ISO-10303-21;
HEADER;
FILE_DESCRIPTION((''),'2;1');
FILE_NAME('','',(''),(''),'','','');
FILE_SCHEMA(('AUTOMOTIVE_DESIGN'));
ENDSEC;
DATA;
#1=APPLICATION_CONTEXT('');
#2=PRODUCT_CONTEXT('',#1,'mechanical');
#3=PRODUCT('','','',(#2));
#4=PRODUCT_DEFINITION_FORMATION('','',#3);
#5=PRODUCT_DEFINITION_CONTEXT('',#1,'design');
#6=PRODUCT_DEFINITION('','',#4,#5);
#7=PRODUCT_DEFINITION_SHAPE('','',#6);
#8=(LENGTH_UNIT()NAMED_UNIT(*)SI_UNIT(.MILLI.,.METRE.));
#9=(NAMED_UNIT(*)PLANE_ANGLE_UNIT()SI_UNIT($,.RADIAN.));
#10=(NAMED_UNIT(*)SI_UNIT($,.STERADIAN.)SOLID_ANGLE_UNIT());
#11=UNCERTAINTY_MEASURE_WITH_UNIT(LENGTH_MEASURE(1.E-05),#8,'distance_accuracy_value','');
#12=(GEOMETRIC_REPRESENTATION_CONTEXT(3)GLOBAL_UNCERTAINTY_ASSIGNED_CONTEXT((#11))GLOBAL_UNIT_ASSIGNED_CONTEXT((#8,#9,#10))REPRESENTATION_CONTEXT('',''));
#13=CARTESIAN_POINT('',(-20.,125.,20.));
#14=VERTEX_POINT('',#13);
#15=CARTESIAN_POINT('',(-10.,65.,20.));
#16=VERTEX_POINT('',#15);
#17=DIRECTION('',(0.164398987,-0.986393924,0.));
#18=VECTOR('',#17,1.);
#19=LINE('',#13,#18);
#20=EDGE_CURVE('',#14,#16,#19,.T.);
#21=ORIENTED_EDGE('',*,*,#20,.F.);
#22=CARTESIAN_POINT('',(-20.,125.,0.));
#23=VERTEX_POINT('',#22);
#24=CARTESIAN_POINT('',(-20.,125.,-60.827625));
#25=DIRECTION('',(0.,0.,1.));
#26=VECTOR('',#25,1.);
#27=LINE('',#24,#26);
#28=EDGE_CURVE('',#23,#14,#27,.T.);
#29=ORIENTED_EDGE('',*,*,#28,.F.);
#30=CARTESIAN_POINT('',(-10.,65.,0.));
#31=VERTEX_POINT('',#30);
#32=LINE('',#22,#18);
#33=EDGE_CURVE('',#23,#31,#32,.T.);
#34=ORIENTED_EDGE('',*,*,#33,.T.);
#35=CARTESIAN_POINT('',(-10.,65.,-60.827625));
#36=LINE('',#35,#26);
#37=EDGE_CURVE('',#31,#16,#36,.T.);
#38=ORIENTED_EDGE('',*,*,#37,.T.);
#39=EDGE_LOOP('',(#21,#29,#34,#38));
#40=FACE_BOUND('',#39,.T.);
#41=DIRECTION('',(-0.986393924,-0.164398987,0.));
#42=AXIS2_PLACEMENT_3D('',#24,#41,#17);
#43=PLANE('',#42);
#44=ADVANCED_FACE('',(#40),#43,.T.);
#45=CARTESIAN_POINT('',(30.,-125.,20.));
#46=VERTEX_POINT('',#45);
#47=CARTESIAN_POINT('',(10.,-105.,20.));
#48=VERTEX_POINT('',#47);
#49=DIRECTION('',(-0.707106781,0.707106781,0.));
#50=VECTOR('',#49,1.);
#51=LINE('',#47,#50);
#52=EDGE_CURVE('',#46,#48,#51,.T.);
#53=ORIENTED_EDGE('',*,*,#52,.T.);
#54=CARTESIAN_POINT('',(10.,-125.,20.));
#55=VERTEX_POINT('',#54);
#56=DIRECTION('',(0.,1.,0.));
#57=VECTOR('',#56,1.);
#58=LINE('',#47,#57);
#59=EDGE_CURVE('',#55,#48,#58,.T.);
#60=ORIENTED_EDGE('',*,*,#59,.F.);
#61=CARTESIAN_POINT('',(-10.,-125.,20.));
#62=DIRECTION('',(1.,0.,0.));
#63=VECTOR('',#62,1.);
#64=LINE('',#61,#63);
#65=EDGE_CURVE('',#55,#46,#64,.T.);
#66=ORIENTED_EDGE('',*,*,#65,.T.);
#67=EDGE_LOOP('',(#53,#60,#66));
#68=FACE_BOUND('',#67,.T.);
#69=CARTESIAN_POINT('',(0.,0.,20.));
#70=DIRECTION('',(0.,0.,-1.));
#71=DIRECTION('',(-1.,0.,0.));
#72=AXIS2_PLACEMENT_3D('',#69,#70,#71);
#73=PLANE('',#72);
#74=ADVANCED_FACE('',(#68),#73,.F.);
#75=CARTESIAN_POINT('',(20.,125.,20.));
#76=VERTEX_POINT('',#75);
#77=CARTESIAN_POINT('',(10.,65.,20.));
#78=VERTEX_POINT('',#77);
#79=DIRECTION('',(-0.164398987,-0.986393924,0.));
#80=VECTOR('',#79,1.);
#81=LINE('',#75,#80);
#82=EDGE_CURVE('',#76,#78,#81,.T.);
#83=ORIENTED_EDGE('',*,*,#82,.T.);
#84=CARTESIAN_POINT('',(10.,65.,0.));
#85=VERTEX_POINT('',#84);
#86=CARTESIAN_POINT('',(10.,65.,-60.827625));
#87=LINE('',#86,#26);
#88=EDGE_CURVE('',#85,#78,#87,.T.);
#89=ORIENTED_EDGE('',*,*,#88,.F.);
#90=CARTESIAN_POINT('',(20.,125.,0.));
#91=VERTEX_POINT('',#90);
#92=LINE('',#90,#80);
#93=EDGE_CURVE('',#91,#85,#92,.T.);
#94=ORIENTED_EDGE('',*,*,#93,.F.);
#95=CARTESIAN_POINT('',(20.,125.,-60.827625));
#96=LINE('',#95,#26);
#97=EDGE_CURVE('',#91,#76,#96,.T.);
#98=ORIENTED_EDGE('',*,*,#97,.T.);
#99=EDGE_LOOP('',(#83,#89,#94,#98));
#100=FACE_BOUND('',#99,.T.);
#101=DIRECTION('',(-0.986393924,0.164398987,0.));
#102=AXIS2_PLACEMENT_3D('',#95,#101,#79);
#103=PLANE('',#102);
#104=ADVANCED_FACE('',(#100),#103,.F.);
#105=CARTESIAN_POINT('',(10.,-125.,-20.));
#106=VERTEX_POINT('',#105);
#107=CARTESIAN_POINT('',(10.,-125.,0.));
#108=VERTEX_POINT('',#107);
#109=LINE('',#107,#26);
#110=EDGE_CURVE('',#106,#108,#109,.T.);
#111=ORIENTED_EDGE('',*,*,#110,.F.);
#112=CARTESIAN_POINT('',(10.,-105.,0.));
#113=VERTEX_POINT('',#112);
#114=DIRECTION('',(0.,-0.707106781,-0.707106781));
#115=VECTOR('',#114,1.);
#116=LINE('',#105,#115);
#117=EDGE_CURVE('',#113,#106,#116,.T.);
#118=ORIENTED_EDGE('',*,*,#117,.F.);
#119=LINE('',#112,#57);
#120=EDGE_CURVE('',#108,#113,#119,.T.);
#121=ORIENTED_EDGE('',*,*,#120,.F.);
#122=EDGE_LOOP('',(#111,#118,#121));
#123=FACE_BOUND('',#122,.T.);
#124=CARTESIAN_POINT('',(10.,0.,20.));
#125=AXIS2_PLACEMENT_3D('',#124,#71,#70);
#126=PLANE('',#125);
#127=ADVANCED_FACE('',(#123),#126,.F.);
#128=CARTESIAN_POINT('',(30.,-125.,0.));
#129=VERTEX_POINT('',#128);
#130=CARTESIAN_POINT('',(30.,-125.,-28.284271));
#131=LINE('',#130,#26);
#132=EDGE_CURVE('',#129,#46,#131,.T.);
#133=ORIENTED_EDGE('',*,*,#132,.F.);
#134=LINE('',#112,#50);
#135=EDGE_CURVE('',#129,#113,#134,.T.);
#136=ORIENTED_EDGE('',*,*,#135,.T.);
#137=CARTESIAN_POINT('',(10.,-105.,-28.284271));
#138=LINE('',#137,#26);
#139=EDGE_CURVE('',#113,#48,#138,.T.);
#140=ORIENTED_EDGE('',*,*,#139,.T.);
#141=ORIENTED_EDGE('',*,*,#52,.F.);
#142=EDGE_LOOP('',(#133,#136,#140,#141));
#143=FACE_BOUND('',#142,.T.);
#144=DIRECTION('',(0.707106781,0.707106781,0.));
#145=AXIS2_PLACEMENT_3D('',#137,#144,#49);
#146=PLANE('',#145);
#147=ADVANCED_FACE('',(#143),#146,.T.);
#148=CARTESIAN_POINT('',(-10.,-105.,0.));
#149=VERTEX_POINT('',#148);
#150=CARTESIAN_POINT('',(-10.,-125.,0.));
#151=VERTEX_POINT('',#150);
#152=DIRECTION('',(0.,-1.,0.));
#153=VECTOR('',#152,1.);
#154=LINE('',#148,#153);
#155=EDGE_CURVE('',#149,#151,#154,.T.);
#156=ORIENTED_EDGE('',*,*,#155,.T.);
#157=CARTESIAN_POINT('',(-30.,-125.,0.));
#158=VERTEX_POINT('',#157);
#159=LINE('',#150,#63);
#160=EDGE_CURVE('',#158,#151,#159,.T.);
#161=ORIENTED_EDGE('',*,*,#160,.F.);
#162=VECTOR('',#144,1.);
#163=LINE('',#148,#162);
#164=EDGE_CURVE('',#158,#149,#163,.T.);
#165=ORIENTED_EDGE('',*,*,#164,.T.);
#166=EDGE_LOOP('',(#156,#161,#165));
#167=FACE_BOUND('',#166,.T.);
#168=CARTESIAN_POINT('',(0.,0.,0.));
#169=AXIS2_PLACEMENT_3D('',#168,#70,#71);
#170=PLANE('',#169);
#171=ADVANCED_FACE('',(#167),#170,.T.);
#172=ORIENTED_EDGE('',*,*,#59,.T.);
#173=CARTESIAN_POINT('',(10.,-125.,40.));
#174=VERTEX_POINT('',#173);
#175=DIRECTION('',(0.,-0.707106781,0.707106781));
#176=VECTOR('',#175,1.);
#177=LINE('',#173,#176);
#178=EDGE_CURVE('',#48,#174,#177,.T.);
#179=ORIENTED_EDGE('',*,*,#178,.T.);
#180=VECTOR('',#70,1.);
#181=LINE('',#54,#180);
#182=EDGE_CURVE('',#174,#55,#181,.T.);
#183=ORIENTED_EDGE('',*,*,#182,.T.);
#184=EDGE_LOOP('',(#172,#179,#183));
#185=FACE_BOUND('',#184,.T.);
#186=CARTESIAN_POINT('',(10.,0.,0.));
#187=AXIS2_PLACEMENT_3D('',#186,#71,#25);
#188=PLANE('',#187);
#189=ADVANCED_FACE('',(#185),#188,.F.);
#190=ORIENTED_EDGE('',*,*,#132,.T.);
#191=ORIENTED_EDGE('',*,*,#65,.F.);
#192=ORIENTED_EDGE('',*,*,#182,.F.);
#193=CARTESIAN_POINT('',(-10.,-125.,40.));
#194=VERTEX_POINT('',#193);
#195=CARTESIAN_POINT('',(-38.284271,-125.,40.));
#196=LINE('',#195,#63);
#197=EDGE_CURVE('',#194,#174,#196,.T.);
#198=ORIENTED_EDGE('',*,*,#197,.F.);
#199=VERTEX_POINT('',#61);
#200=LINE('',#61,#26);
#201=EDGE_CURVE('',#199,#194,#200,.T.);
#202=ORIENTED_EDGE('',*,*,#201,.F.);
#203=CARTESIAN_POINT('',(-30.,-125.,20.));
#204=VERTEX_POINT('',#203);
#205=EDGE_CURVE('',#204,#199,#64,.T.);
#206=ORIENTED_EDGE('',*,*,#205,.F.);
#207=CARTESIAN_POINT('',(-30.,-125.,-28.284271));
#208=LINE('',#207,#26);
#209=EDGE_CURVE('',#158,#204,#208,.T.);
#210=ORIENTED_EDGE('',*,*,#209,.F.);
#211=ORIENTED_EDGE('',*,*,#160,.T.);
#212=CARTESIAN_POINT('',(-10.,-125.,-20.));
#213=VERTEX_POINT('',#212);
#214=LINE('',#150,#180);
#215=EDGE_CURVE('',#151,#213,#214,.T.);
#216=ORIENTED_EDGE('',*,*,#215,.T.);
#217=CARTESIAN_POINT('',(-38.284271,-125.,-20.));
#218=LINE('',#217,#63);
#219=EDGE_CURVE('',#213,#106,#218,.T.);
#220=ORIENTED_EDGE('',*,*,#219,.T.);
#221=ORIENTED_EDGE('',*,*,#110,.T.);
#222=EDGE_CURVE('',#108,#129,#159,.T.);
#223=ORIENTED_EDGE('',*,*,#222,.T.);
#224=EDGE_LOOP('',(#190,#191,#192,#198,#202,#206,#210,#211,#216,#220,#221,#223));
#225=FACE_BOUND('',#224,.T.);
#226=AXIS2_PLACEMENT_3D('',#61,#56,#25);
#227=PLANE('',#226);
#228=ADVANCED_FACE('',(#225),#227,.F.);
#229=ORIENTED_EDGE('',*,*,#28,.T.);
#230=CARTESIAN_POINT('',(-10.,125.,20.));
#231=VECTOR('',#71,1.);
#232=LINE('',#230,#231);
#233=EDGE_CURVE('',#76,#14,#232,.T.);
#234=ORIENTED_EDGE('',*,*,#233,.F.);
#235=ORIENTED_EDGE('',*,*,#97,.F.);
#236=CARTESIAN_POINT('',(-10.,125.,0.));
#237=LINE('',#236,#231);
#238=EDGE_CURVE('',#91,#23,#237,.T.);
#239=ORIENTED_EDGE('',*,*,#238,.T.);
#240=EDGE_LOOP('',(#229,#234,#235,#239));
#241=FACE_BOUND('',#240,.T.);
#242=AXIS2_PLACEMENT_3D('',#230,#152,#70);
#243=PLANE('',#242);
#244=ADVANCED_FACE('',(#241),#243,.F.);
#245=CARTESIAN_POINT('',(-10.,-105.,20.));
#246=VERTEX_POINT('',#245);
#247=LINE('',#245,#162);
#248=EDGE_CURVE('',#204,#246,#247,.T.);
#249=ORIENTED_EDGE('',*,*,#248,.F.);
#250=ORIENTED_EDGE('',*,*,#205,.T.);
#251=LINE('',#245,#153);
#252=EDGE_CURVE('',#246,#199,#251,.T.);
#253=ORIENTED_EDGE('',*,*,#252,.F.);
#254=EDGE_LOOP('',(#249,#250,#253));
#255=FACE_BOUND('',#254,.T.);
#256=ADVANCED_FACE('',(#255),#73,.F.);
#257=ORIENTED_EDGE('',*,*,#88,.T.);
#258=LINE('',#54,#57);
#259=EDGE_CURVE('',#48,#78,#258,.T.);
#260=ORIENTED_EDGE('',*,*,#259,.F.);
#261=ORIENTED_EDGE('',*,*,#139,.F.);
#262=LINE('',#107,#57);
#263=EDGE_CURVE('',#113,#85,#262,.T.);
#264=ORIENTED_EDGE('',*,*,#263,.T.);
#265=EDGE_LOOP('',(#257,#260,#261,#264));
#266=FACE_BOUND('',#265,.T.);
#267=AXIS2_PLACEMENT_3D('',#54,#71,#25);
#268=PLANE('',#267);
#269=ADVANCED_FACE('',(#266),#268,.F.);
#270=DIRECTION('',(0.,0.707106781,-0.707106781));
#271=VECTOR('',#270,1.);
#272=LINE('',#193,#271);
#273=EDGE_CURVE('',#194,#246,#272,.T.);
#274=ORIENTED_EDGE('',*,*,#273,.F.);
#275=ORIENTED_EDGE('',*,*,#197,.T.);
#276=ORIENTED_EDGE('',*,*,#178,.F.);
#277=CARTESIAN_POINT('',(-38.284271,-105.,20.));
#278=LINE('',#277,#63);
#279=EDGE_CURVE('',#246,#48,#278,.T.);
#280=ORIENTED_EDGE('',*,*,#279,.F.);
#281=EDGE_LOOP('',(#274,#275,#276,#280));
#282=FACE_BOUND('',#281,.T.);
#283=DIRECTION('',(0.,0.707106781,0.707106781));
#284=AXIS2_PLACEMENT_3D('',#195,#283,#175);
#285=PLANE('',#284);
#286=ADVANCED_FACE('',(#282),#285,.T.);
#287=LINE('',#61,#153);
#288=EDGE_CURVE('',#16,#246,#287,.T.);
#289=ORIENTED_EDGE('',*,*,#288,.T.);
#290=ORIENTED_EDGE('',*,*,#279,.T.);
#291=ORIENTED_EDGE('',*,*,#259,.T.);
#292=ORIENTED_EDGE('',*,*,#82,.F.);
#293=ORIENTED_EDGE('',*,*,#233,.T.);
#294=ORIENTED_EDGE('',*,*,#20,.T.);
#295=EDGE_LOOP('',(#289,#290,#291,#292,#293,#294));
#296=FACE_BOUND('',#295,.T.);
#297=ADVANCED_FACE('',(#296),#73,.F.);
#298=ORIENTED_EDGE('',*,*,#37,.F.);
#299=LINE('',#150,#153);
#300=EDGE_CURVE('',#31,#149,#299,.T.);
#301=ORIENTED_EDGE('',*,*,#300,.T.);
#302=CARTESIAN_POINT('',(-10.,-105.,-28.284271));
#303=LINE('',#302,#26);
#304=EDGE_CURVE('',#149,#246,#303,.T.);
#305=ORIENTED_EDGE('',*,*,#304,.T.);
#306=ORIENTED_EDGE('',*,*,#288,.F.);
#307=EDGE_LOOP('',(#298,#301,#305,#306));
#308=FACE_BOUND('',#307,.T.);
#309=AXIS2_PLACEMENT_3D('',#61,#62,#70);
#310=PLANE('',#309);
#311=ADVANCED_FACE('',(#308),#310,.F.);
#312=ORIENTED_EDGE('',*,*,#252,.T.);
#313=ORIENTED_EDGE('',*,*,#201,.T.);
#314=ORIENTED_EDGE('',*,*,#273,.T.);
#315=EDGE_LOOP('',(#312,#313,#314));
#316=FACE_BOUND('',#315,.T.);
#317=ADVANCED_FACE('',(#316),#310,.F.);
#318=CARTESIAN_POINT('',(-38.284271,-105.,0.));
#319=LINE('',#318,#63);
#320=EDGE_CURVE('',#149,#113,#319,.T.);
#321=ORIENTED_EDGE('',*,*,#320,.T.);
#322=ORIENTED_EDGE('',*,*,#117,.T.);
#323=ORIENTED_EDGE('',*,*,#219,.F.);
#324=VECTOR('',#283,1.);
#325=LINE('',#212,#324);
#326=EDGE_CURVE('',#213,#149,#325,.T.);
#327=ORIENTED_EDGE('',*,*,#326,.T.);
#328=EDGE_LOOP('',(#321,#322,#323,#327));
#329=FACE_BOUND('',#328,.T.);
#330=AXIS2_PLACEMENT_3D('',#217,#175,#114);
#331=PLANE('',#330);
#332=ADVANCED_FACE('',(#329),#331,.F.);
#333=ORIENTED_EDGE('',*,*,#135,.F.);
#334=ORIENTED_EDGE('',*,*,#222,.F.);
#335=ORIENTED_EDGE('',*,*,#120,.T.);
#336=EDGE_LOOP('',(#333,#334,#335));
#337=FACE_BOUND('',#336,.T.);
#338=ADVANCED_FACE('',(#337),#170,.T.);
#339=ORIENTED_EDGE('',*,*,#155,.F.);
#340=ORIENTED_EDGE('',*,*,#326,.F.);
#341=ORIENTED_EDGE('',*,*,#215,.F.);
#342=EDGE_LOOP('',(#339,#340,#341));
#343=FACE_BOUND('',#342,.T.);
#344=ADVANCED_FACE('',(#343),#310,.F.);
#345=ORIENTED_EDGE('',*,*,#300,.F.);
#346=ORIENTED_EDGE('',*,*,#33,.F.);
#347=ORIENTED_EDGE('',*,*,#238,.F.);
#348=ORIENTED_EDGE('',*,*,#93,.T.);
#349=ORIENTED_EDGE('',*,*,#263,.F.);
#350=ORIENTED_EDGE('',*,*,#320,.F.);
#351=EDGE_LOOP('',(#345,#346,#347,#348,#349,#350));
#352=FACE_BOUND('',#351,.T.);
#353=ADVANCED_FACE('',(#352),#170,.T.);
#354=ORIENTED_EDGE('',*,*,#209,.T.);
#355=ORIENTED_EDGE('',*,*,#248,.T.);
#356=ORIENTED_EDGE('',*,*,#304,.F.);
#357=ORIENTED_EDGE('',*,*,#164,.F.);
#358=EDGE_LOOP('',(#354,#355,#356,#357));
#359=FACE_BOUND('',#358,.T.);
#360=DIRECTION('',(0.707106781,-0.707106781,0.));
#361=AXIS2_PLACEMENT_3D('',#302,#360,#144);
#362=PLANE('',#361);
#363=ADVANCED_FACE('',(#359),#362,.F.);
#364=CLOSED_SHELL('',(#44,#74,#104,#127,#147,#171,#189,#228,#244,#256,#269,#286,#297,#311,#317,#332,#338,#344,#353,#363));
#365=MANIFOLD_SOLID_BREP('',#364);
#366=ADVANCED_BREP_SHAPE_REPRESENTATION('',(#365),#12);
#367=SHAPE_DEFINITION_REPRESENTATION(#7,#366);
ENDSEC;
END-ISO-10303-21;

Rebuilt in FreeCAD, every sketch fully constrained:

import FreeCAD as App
import Part
import Sketcher


def add_polygon(sketch, points):
    """Adds a closed chain of lines whose ends are joined by coincident constraints."""
    first, n = sketch.GeometryCount, len(points)
    for a, b in zip(points, points[1:] + points[:1]):
        sketch.addGeometry(Part.LineSegment(App.Vector(*a, 0), App.Vector(*b, 0)), False)
    for i in range(n):
        sketch.addConstraint(Sketcher.Constraint("Coincident", first + i, 2, first + (i + 1) % n, 1))

doc = App.newDocument("Part")
body = doc.addObject("PartDesign::Body", "Body")

# Sketch on XY plane
sketch1 = body.newObject("Sketcher::SketchObject", "Sketch")
sketch1.AttachmentSupport = (doc.getObject("XY_Plane"), [""])
sketch1.MapMode = "FlatFace"
add_polygon(sketch1, [(-10, 125), (-10, -125), (10, -125), (10, 125)])  # lines 0-3
sketch1.addConstraint([
    Sketcher.Constraint("Vertical", 0),
    Sketcher.Constraint("Horizontal", 1),
    Sketcher.Constraint("Vertical", 2),
    Sketcher.Constraint("Horizontal", 3),
    Sketcher.Constraint("Symmetric", 0, 2, 2, 2, -1, 1),
    Sketcher.Constraint("DistanceX", 1, 1, 1, 2, 20.0),
    Sketcher.Constraint("DistanceY", 0, 2, 0, 1, 250.0),
])
pad1 = body.newObject("PartDesign::Pad", "Pad")
pad1.Profile = sketch1
pad1.Length = 20

# Sketch on XY plane
sketch2 = body.newObject("Sketcher::SketchObject", "Sketch001")
sketch2.AttachmentSupport = (doc.getObject("XY_Plane"), [""])
sketch2.MapMode = "FlatFace"
sketch2.AttachmentOffset = App.Placement(App.Vector(0, 0, 20), App.Rotation())
add_polygon(sketch2, [(10, -105), (10, -125), (30, -125)])  # lines 0-2
sketch2.addConstraint([
    Sketcher.Constraint("Vertical", 0),
    Sketcher.Constraint("Horizontal", 1),
    Sketcher.Constraint("Equal", 1, 0),
    Sketcher.Constraint("DistanceX", 1, 1, 1, 2, 20.0),
    Sketcher.Constraint("DistanceX", -1, 1, 0, 2, 10.0),
    Sketcher.Constraint("DistanceY", 0, 2, -1, 1, 125.0),
])
pad2 = body.newObject("PartDesign::Pad", "Pad001")
pad2.Profile = sketch2
pad2.Length = 20
pad2.Reversed = True
doc.recompute()

mirrored = body.newObject("PartDesign::Mirrored", "Mirrored")
mirrored.Originals = [pad2]
mirrored.MirrorPlane = (doc.getObject("YZ_Plane"), [""])
body.Tip = mirrored

# Sketch on YZ plane
sketch3 = body.newObject("Sketcher::SketchObject", "Sketch002")
sketch3.AttachmentSupport = (doc.getObject("YZ_Plane"), [""])
sketch3.MapMode = "FlatFace"
sketch3.AttachmentOffset = App.Placement(App.Vector(0, 0, 10), App.Rotation())
add_polygon(sketch3, [(-125, 20), (-105, 20), (-125, 40)])  # lines 0-2
sketch3.addConstraint([
    Sketcher.Constraint("Horizontal", 0),
    Sketcher.Constraint("Vertical", 2),
    Sketcher.Constraint("Equal", 0, 2),
    Sketcher.Constraint("DistanceX", 0, 1, 0, 2, 20.0),
    Sketcher.Constraint("DistanceX", 0, 2, -1, 1, 105.0),
    Sketcher.Constraint("DistanceY", -1, 1, 0, 2, 20.0),
])
pad3 = body.newObject("PartDesign::Pad", "Pad002")
pad3.Profile = sketch3
pad3.Length = 20
pad3.Reversed = True
doc.recompute()

datumplane = body.newObject("PartDesign::Plane", "DatumPlane")
datumplane.AttachmentSupport = (doc.getObject("XY_Plane"), [""])
datumplane.MapMode = "FlatFace"
datumplane.AttachmentOffset = App.Placement(App.Vector(0, 0, 10), App.Rotation())
mirrored2 = body.newObject("PartDesign::Mirrored", "Mirrored001")
mirrored2.Originals = [pad3]
mirrored2.MirrorPlane = (datumplane, [""])
body.Tip = mirrored2

# Sketch on XY plane
sketch4 = body.newObject("Sketcher::SketchObject", "Sketch003")
sketch4.AttachmentSupport = (doc.getObject("XY_Plane"), [""])
sketch4.MapMode = "FlatFace"
sketch4.AttachmentOffset = App.Placement(App.Vector(0, 0, 20), App.Rotation())
add_polygon(sketch4, [(-10, 125), (-20, 125), (-10, 65)])  # lines 0-2
sketch4.addConstraint([
    Sketcher.Constraint("Horizontal", 0),
    Sketcher.Constraint("Vertical", 2),
    Sketcher.Constraint("DistanceX", 0, 2, 0, 1, 10.0),
    Sketcher.Constraint("DistanceY", 2, 1, 2, 2, 60.0),
    Sketcher.Constraint("DistanceX", 0, 2, -1, 1, 20.0),
    Sketcher.Constraint("DistanceY", -1, 1, 0, 2, 125.0),
])
pad4 = body.newObject("PartDesign::Pad", "Pad003")
pad4.Profile = sketch4
pad4.Length = 20
pad4.Reversed = True
doc.recompute()

mirrored3 = body.newObject("PartDesign::Mirrored", "Mirrored002")
mirrored3.Originals = [pad4]
mirrored3.MirrorPlane = (doc.getObject("YZ_Plane"), [""])
body.Tip = mirrored3

doc.recompute()
